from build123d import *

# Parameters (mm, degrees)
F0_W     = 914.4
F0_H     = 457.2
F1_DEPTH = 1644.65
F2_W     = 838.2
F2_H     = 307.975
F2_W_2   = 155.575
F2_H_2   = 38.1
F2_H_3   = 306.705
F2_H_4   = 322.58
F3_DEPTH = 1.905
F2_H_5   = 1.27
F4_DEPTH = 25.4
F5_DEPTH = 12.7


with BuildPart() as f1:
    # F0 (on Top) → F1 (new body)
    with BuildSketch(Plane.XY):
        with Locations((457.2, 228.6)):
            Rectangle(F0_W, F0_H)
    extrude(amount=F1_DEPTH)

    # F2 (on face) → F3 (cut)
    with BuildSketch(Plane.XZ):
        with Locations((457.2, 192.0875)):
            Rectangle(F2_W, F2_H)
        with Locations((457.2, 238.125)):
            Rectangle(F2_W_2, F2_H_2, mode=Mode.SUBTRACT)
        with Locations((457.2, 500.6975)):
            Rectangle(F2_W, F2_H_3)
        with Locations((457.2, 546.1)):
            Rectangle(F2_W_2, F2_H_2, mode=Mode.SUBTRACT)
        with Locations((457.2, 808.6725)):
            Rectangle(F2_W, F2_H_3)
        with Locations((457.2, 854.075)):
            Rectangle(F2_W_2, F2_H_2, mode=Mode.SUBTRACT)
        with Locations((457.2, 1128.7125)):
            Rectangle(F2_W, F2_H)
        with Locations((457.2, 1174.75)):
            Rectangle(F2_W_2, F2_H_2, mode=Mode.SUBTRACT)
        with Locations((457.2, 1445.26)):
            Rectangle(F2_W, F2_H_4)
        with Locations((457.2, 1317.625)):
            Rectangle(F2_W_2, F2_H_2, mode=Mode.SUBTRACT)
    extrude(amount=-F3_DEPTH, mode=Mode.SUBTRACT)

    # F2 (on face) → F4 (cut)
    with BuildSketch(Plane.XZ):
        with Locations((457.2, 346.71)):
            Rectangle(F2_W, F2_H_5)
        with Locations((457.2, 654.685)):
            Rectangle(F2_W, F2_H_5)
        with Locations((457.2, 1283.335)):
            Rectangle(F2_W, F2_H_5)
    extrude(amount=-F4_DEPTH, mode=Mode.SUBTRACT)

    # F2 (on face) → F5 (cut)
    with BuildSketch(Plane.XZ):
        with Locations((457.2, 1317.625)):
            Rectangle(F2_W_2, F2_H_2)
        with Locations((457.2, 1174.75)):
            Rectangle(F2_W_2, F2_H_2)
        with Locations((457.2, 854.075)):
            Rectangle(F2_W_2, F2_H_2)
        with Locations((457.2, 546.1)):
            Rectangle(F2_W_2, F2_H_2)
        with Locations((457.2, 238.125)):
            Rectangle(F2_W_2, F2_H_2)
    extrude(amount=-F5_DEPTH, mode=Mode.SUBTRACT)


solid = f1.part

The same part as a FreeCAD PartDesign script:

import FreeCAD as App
import Part
import Sketcher

V = App.Vector
Q = App.Units.Quantity

doc = App.newDocument("Part")
body = doc.addObject("PartDesign::Body", "Body")

sketch1 = body.newObject("Sketcher::SketchObject", "Sketch")
sketch1.AttachmentSupport = (doc.getObject("XY_Plane"), [""])
sketch1.MapMode = "FlatFace"
sketch1.addGeometry([
    Part.LineSegment(V(0, 457.2, 0), V(0, 0, 0)),
    Part.LineSegment(V(0, 0, 0), V(914.4, 0, 0)),
    Part.LineSegment(V(914.4, 0, 0), V(914.4, 457.2, 0)),
    Part.LineSegment(V(914.4, 457.2, 0), V(0, 457.2, 0)),
], False)
sketch1.addConstraint([
    Sketcher.Constraint("Coincident", 0, 2, 1, 1),
    Sketcher.Constraint("Coincident", 1, 2, 2, 1),
    Sketcher.Constraint("Coincident", 2, 2, 3, 1),
    Sketcher.Constraint("Coincident", 3, 2, 0, 1),
    Sketcher.Constraint("Vertical", 0),
    Sketcher.Constraint("Horizontal", 1),
    Sketcher.Constraint("Vertical", 2),
    Sketcher.Constraint("Horizontal", 3),
    Sketcher.Constraint("Coincident", 0, 2, -1, 1),
    Sketcher.Constraint("DistanceX", 1, 1, 1, 2, Q("36 in")),
    Sketcher.Constraint("DistanceY", 0, 2, 0, 1, Q("18 in")),
])
pad1 = body.newObject("PartDesign::Pad", "Pad")
pad1.Profile = sketch1
pad1.Length = Q("64.75 in")

sketch2 = body.newObject("Sketcher::SketchObject", "Sketch001")
sketch2.AttachmentSupport = (doc.getObject("XZ_Plane"), [""])
sketch2.MapMode = "FlatFace"
sketch2.addGeometry([
    Part.LineSegment(V(38.1, 346.075, 0), V(38.1, 38.1, 0)),
    Part.LineSegment(V(38.1, 38.1, 0), V(876.3, 38.1, 0)),
    Part.LineSegment(V(876.3, 38.1, 0), V(876.3, 346.075, 0)),
    Part.LineSegment(V(876.3, 346.075, 0), V(38.1, 346.075, 0)),
    Part.LineSegment(V(534.9875, 219.075, 0), V(379.4125, 219.075, 0)),
    Part.LineSegment(V(379.4125, 219.075, 0), V(379.4125, 257.175, 0)),
    Part.LineSegment(V(379.4125, 257.175, 0), V(534.9875, 257.175, 0)),
    Part.LineSegment(V(534.9875, 257.175, 0), V(534.9875, 219.075, 0)),
    Part.LineSegment(V(38.1, 654.05, 0), V(38.1, 347.345, 0)),
    Part.LineSegment(V(38.1, 347.345, 0), V(876.3, 347.345, 0)),
    Part.LineSegment(V(876.3, 347.345, 0), V(876.3, 654.05, 0)),
    Part.LineSegment(V(876.3, 654.05, 0), V(38.1, 654.05, 0)),
    Part.LineSegment(V(534.9875, 527.05, 0), V(379.4125, 527.05, 0)),
    Part.LineSegment(V(379.4125, 527.05, 0), V(379.4125, 565.15, 0)),
    Part.LineSegment(V(379.4125, 565.15, 0), V(534.9875, 565.15, 0)),
    Part.LineSegment(V(534.9875, 565.15, 0), V(534.9875, 527.05, 0)),
    Part.LineSegment(V(38.1, 962.025, 0), V(38.1, 655.32, 0)),
    Part.LineSegment(V(38.1, 655.32, 0), V(876.3, 655.32, 0)),
    Part.LineSegment(V(876.3, 655.32, 0), V(876.3, 962.025, 0)),
    Part.LineSegment(V(876.3, 962.025, 0), V(38.1, 962.025, 0)),
    Part.LineSegment(V(534.9875, 835.025, 0), V(379.4125, 835.025, 0)),
    Part.LineSegment(V(379.4125, 835.025, 0), V(379.4125, 873.125, 0)),
    Part.LineSegment(V(379.4125, 873.125, 0), V(534.9875, 873.125, 0)),
    Part.LineSegment(V(534.9875, 873.125, 0), V(534.9875, 835.025, 0)),
    Part.LineSegment(V(38.1, 1282.7, 0), V(38.1, 974.725, 0)),
    Part.LineSegment(V(38.1, 974.725, 0), V(876.3, 974.725, 0)),
    Part.LineSegment(V(876.3, 974.725, 0), V(876.3, 1282.7, 0)),
    Part.LineSegment(V(876.3, 1282.7, 0), V(38.1, 1282.7, 0)),
    Part.LineSegment(V(534.9875, 1155.7, 0), V(379.4125, 1155.7, 0)),
    Part.LineSegment(V(379.4125, 1155.7, 0), V(379.4125, 1193.8, 0)),
    Part.LineSegment(V(379.4125, 1193.8, 0), V(534.9875, 1193.8, 0)),
    Part.LineSegment(V(534.9875, 1193.8, 0), V(534.9875, 1155.7, 0)),
    Part.LineSegment(V(38.1, 1606.55, 0), V(38.1, 1283.97, 0)),
    Part.LineSegment(V(38.1, 1283.97, 0), V(876.3, 1283.97, 0)),
    Part.LineSegment(V(876.3, 1283.97, 0), V(876.3, 1606.55, 0)),
    Part.LineSegment(V(876.3, 1606.55, 0), V(38.1, 1606.55, 0)),
    Part.LineSegment(V(534.9875, 1298.575, 0), V(379.4125, 1298.575, 0)),
    Part.LineSegment(V(379.4125, 1298.575, 0), V(379.4125, 1336.675, 0)),
    Part.LineSegment(V(379.4125, 1336.675, 0), V(534.9875, 1336.675, 0)),
    Part.LineSegment(V(534.9875, 1336.675, 0), V(534.9875, 1298.575, 0)),
], False)
sketch2.addConstraint([
    Sketcher.Constraint("Coincident", 0, 2, 1, 1),
    Sketcher.Constraint("Coincident", 1, 2, 2, 1),
    Sketcher.Constraint("Coincident", 2, 2, 3, 1),
    Sketcher.Constraint("Coincident", 3, 2, 0, 1),
    Sketcher.Constraint("Coincident", 4, 2, 5, 1),
    Sketcher.Constraint("Coincident", 5, 2, 6, 1),
    Sketcher.Constraint("Coincident", 6, 2, 7, 1),
    Sketcher.Constraint("Coincident", 7, 2, 4, 1),
    Sketcher.Constraint("Coincident", 8, 2, 9, 1),
    Sketcher.Constraint("Coincident", 9, 2, 10, 1),
    Sketcher.Constraint("Coincident", 10, 2, 11, 1),
    Sketcher.Constraint("Coincident", 11, 2, 8, 1),
    Sketcher.Constraint("Coincident", 12, 2, 13, 1),
    Sketcher.Constraint("Coincident", 13, 2, 14, 1),
    Sketcher.Constraint("Coincident", 14, 2, 15, 1),
    Sketcher.Constraint("Coincident", 15, 2, 12, 1),
    Sketcher.Constraint("Coincident", 16, 2, 17, 1),
    Sketcher.Constraint("Coincident", 17, 2, 18, 1),
    Sketcher.Constraint("Coincident", 18, 2, 19, 1),
    Sketcher.Constraint("Coincident", 19, 2, 16, 1),
    Sketcher.Constraint("Coincident", 20, 2, 21, 1),
    Sketcher.Constraint("Coincident", 21, 2, 22, 1),
    Sketcher.Constraint("Coincident", 22, 2, 23, 1),
    Sketcher.Constraint("Coincident", 23, 2, 20, 1),
    Sketcher.Constraint("Coincident", 24, 2, 25, 1),
    Sketcher.Constraint("Coincident", 25, 2, 26, 1),
    Sketcher.Constraint("Coincident", 26, 2, 27, 1),
    Sketcher.Constraint("Coincident", 27, 2, 24, 1),
    Sketcher.Constraint("Coincident", 28, 2, 29, 1),
    Sketcher.Constraint("Coincident", 29, 2, 30, 1),
    Sketcher.Constraint("Coincident", 30, 2, 31, 1),
    Sketcher.Constraint("Coincident", 31, 2, 28, 1),
    Sketcher.Constraint("Coincident", 32, 2, 33, 1),
    Sketcher.Constraint("Coincident", 33, 2, 34, 1),
    Sketcher.Constraint("Coincident", 34, 2, 35, 1),
    Sketcher.Constraint("Coincident", 35, 2, 32, 1),
    Sketcher.Constraint("Coincident", 36, 2, 37, 1),
    Sketcher.Constraint("Coincident", 37, 2, 38, 1),
    Sketcher.Constraint("Coincident", 38, 2, 39, 1),
    Sketcher.Constraint("Coincident", 39, 2, 36, 1),
    Sketcher.Constraint("Vertical", 0),
    Sketcher.Constraint("Horizontal", 1),
    Sketcher.Constraint("Vertical", 2),
    Sketcher.Constraint("Horizontal", 3),
    Sketcher.Constraint("Horizontal", 4),
    Sketcher.Constraint("Vertical", 5),
    Sketcher.Constraint("Horizontal", 6),
    Sketcher.Constraint("Vertical", 7),
    Sketcher.Constraint("Vertical", 8),
    Sketcher.Constraint("Horizontal", 9),
    Sketcher.Constraint("Vertical", 10),
    Sketcher.Constraint("Horizontal", 11),
    Sketcher.Constraint("Horizontal", 12),
    Sketcher.Constraint("Vertical", 13),
    Sketcher.Constraint("Horizontal", 14),
    Sketcher.Constraint("Vertical", 15),
    Sketcher.Constraint("Vertical", 16),
    Sketcher.Constraint("Horizontal", 17),
    Sketcher.Constraint("Vertical", 18),
    Sketcher.Constraint("Horizontal", 19),
    Sketcher.Constraint("Horizontal", 20),
    Sketcher.Constraint("Vertical", 21),
    Sketcher.Constraint("Horizontal", 22),
    Sketcher.Constraint("Vertical", 23),
    Sketcher.Constraint("Vertical", 24),
    Sketcher.Constraint("Horizontal", 25),
    Sketcher.Constraint("Vertical", 26),
    Sketcher.Constraint("Horizontal", 27),
    Sketcher.Constraint("Horizontal", 28),
    Sketcher.Constraint("Vertical", 29),
    Sketcher.Constraint("Horizontal", 30),
    Sketcher.Constraint("Vertical", 31),
    Sketcher.Constraint("Vertical", 32),
    Sketcher.Constraint("Horizontal", 33),
    Sketcher.Constraint("Vertical", 34),
    Sketcher.Constraint("Horizontal", 35),
    Sketcher.Constraint("Horizontal", 36),
    Sketcher.Constraint("Vertical", 37),
    Sketcher.Constraint("Horizontal", 38),
    Sketcher.Constraint("Vertical", 39),
    Sketcher.Constraint("Vertical", 3, 2, 8, 2),
    Sketcher.Constraint("Vertical", 2, 2, 9, 2),
    Sketcher.Constraint("Vertical", 5, 2, 12, 2),
    Sketcher.Constraint("Vertical", 7, 2, 14, 2),
    Sketcher.Constraint("Vertical", 11, 2, 16, 2),
    Sketcher.Constraint("Vertical", 10, 2, 17, 2),
    Sketcher.Constraint("Vertical", 13, 2, 20, 2),
    Sketcher.Constraint("Vertical", 15, 2, 22, 2),
    Sketcher.Constraint("Vertical", 19, 2, 24, 2),
    Sketcher.Constraint("Vertical", 18, 2, 25, 2),
    Sketcher.Constraint("Vertical", 21, 2, 28, 2),
    Sketcher.Constraint("Vertical", 23, 2, 30, 2),
    Sketcher.Constraint("Vertical", 27, 2, 32, 2),
    Sketcher.Constraint("Vertical", 26, 2, 33, 2),
    Sketcher.Constraint("Vertical", 29, 2, 36, 2),
    Sketcher.Constraint("Vertical", 31, 2, 38, 2),
    Sketcher.Constraint("Equal", 7, 13),
    Sketcher.Constraint("Equal", 10, 16),
    Sketcher.Constraint("Equal", 15, 21),
    Sketcher.Constraint("Equal", 2, 24),
    Sketcher.Constraint("Equal", 23, 29),
    Sketcher.Constraint("Equal", 31, 37),
    Sketcher.Constraint("DistanceX", 1, 1, 1, 2, Q("33 in")),
    Sketcher.Constraint("DistanceY", 5, 1, 5, 2, Q("1.5 in")),
    Sketcher.Constraint("DistanceY", 32, 2, 32, 1, Q("12.7 in")),
    Sketcher.Constraint("DistanceY", -1, 1, 29, 2, Q("47 in")),
    Sketcher.Constraint("DistanceY", 4, 2, 3, 2, Q("5 in")),
    Sketcher.Constraint("DistanceY", 12, 2, 11, 2, Q("5 in")),
    Sketcher.Constraint("DistanceY", 20, 2, 19, 2, Q("5 in")),
    Sketcher.Constraint("DistanceY", 21, 2, 24, 2, Q("4 in")),
    Sketcher.Constraint("DistanceY", 28, 2, 27, 2, Q("5 in")),
    Sketcher.Constraint("DistanceX", -1, 1, 0, 2, Q("1.5 in")),
    Sketcher.Constraint("DistanceY", -1, 1, 0, 2, Q("1.5 in")),
    Sketcher.Constraint("DistanceY", -1, 1, 16, 2, Q("25.8 in")),
    Sketcher.Constraint("DistanceY", 9, 2, 18, 2, Q("24.2 in")),
    Sketcher.Constraint("DistanceX", 4, 2, 4, 1, Q("6.125 in")),
    Sketcher.Constraint("DistanceY", 0, 2, 0, 1, Q("12.125 in")),
    Sketcher.Constraint("DistanceY", -1, 1, 32, 2, Q("50.55 in")),
    Sketcher.Constraint("DistanceX", -1, 1, 4, 2, Q("14.9375 in")),
    Sketcher.Constraint("DistanceY", -1, 1, 36, 2, Q("51.125 in")),
])
pocket1 = body.newObject("PartDesign::Pocket", "Pocket")
pocket1.Profile = sketch2
pocket1.Length = Q("0.075 in")

sketch3 = body.newObject("Sketcher::SketchObject", "Sketch002")
sketch3.AttachmentSupport = (doc.getObject("XZ_Plane"), [""])
sketch3.MapMode = "FlatFace"
sketch3.addGeometry([
    Part.LineSegment(V(38.1, 347.345, 0), V(38.1, 346.075, 0)),
    Part.LineSegment(V(38.1, 346.075, 0), V(876.3, 346.075, 0)),
    Part.LineSegment(V(876.3, 346.075, 0), V(876.3, 347.345, 0)),
    Part.LineSegment(V(876.3, 347.345, 0), V(38.1, 347.345, 0)),
    Part.LineSegment(V(38.1, 655.32, 0), V(38.1, 654.05, 0)),
    Part.LineSegment(V(38.1, 654.05, 0), V(876.3, 654.05, 0)),
    Part.LineSegment(V(876.3, 654.05, 0), V(876.3, 655.32, 0)),
    Part.LineSegment(V(876.3, 655.32, 0), V(38.1, 655.32, 0)),
    Part.LineSegment(V(38.1, 1283.97, 0), V(38.1, 1282.7, 0)),
    Part.LineSegment(V(38.1, 1282.7, 0), V(876.3, 1282.7, 0)),
    Part.LineSegment(V(876.3, 1282.7, 0), V(876.3, 1283.97, 0)),
    Part.LineSegment(V(876.3, 1283.97, 0), V(38.1, 1283.97, 0)),
], False)
sketch3.addConstraint([
    Sketcher.Constraint("Coincident", 0, 2, 1, 1),
    Sketcher.Constraint("Coincident", 1, 2, 2, 1),
    Sketcher.Constraint("Coincident", 2, 2, 3, 1),
    Sketcher.Constraint("Coincident", 3, 2, 0, 1),
    Sketcher.Constraint("Coincident", 4, 2, 5, 1),
    Sketcher.Constraint("Coincident", 5, 2, 6, 1),
    Sketcher.Constraint("Coincident", 6, 2, 7, 1),
    Sketcher.Constraint("Coincident", 7, 2, 4, 1),
    Sketcher.Constraint("Coincident", 8, 2, 9, 1),
    Sketcher.Constraint("Coincident", 9, 2, 10, 1),
    Sketcher.Constraint("Coincident", 10, 2, 11, 1),
    Sketcher.Constraint("Coincident", 11, 2, 8, 1),
    Sketcher.Constraint("Vertical", 0),
    Sketcher.Constraint("Horizontal", 1),
    Sketcher.Constraint("Vertical", 2),
    Sketcher.Constraint("Horizontal", 3),
    Sketcher.Constraint("Vertical", 4),
    Sketcher.Constraint("Horizontal", 5),
    Sketcher.Constraint("Vertical", 6),
    Sketcher.Constraint("Horizontal", 7),
    Sketcher.Constraint("Vertical", 8),
    Sketcher.Constraint("Horizontal", 9),
    Sketcher.Constraint("Vertical", 10),
    Sketcher.Constraint("Horizontal", 11),
    Sketcher.Constraint("Vertical", 3, 2, 4, 2),
    Sketcher.Constraint("Vertical", 2, 2, 5, 2),
    Sketcher.Constraint("Vertical", 7, 2, 8, 2),
    Sketcher.Constraint("Vertical", 6, 2, 9, 2),
    Sketcher.Constraint("Equal", 2, 4),
    Sketcher.Constraint("Equal", 6, 8),
    Sketcher.Constraint("DistanceX", 1, 1, 1, 2, Q("33 in")),
    Sketcher.Constraint("DistanceY", 0, 2, 0, 1, Q("0.05 in")),
    Sketcher.Constraint("DistanceX", -1, 1, 0, 2, Q("1.5 in")),
    Sketcher.Constraint("DistanceY", -1, 1, 6, 2, Q("25.8 in")),
    Sketcher.Constraint("DistanceY", -1, 1, 8, 2, Q("50.5 in")),
    Sketcher.Constraint("DistanceY", -1, 1, 0, 2, Q("13.625 in")),
])
pocket2 = body.newObject("PartDesign::Pocket", "Pocket001")
pocket2.Profile = sketch3
pocket2.Length = Q("1 in")

sketch4 = body.newObject("Sketcher::SketchObject", "Sketch003")
sketch4.AttachmentSupport = (doc.getObject("XZ_Plane"), [""])
sketch4.MapMode = "FlatFace"
sketch4.addGeometry([
    Part.LineSegment(V(379.4125, 1336.675, 0), V(379.4125, 1298.575, 0)),
    Part.LineSegment(V(379.4125, 1298.575, 0), V(534.9875, 1298.575, 0)),
    Part.LineSegment(V(534.9875, 1298.575, 0), V(534.9875, 1336.675, 0)),
    Part.LineSegment(V(534.9875, 1336.675, 0), V(379.4125, 1336.675, 0)),
    Part.LineSegment(V(379.4125, 1193.8, 0), V(379.4125, 1155.7, 0)),
    Part.LineSegment(V(379.4125, 1155.7, 0), V(534.9875, 1155.7, 0)),
    Part.LineSegment(V(534.9875, 1155.7, 0), V(534.9875, 1193.8, 0)),
    Part.LineSegment(V(534.9875, 1193.8, 0), V(379.4125, 1193.8, 0)),
    Part.LineSegment(V(379.4125, 873.125, 0), V(379.4125, 835.025, 0)),
    Part.LineSegment(V(379.4125, 835.025, 0), V(534.9875, 835.025, 0)),
    Part.LineSegment(V(534.9875, 835.025, 0), V(534.9875, 873.125, 0)),
    Part.LineSegment(V(534.9875, 873.125, 0), V(379.4125, 873.125, 0)),
    Part.LineSegment(V(379.4125, 565.15, 0), V(379.4125, 527.05, 0)),
    Part.LineSegment(V(379.4125, 527.05, 0), V(534.9875, 527.05, 0)),
    Part.LineSegment(V(534.9875, 527.05, 0), V(534.9875, 565.15, 0)),
    Part.LineSegment(V(534.9875, 565.15, 0), V(379.4125, 565.15, 0)),
    Part.LineSegment(V(379.4125, 257.175, 0), V(379.4125, 219.075, 0)),
    Part.LineSegment(V(379.4125, 219.075, 0), V(534.9875, 219.075, 0)),
    Part.LineSegment(V(534.9875, 219.075, 0), V(534.9875, 257.175, 0)),
    Part.LineSegment(V(534.9875, 257.175, 0), V(379.4125, 257.175, 0)),
], False)
sketch4.addConstraint([
    Sketcher.Constraint("Coincident", 0, 2, 1, 1),
    Sketcher.Constraint("Coincident", 1, 2, 2, 1),
    Sketcher.Constraint("Coincident", 2, 2, 3, 1),
    Sketcher.Constraint("Coincident", 3, 2, 0, 1),
    Sketcher.Constraint("Coincident", 4, 2, 5, 1),
    Sketcher.Constraint("Coincident", 5, 2, 6, 1),
    Sketcher.Constraint("Coincident", 6, 2, 7, 1),
    Sketcher.Constraint("Coincident", 7, 2, 4, 1),
    Sketcher.Constraint("Coincident", 8, 2, 9, 1),
    Sketcher.Constraint("Coincident", 9, 2, 10, 1),
    Sketcher.Constraint("Coincident", 10, 2, 11, 1),
    Sketcher.Constraint("Coincident", 11, 2, 8, 1),
    Sketcher.Constraint("Coincident", 12, 2, 13, 1),
    Sketcher.Constraint("Coincident", 13, 2, 14, 1),
    Sketcher.Constraint("Coincident", 14, 2, 15, 1),
    Sketcher.Constraint("Coincident", 15, 2, 12, 1),
    Sketcher.Constraint("Coincident", 16, 2, 17, 1),
    Sketcher.Constraint("Coincident", 17, 2, 18, 1),
    Sketcher.Constraint("Coincident", 18, 2, 19, 1),
    Sketcher.Constraint("Coincident", 19, 2, 16, 1),
    Sketcher.Constraint("Vertical", 0),
    Sketcher.Constraint("Horizontal", 1),
    Sketcher.Constraint("Vertical", 2),
    Sketcher.Constraint("Horizontal", 3),
    Sketcher.Constraint("Vertical", 4),
    Sketcher.Constraint("Horizontal", 5),
    Sketcher.Constraint("Vertical", 6),
    Sketcher.Constraint("Horizontal", 7),
    Sketcher.Constraint("Vertical", 8),
    Sketcher.Constraint("Horizontal", 9),
    Sketcher.Constraint("Vertical", 10),
    Sketcher.Constraint("Horizontal", 11),
    Sketcher.Constraint("Vertical", 12),
    Sketcher.Constraint("Horizontal", 13),
    Sketcher.Constraint("Vertical", 14),
    Sketcher.Constraint("Horizontal", 15),
    Sketcher.Constraint("Vertical", 16),
    Sketcher.Constraint("Horizontal", 17),
    Sketcher.Constraint("Vertical", 18),
    Sketcher.Constraint("Horizontal", 19),
    Sketcher.Constraint("Vertical", 3, 2, 4, 2),
    Sketcher.Constraint("Vertical", 2, 2, 5, 2),
    Sketcher.Constraint("Vertical", 7, 2, 8, 2),
    Sketcher.Constraint("Vertical", 6, 2, 9, 2),
    Sketcher.Constraint("Vertical", 11, 2, 12, 2),
    Sketcher.Constraint("Vertical", 10, 2, 13, 2),
    Sketcher.Constraint("Vertical", 15, 2, 16, 2),
    Sketcher.Constraint("Vertical", 14, 2, 17, 2),
    Sketcher.Constraint("Equal", 2, 4),
    Sketcher.Constraint("Equal", 6, 8),
    Sketcher.Constraint("Equal", 10, 12),
    Sketcher.Constraint("Equal", 14, 16),
    Sketcher.Constraint("DistanceY", 0, 2, 0, 1, Q("1.5 in")),
    Sketcher.Constraint("DistanceY", -1, 1, 6, 2, Q("47 in")),
    Sketcher.Constraint("DistanceX", 1, 1, 1, 2, Q("6.125 in")),
    Sketcher.Constraint("DistanceY", -1, 1, 12, 2, Q("20.75 in")),
    Sketcher.Constraint("DistanceY", 8, 2, 0, 2, Q("18.25 in")),
    Sketcher.Constraint("DistanceY", 16, 2, 8, 2, Q("24.25 in")),
    Sketcher.Constraint("DistanceX", -1, 1, 0, 2, Q("14.9375 in")),
    Sketcher.Constraint("DistanceY", -1, 1, 0, 2, Q("51.125 in")),
])
pocket3 = body.newObject("PartDesign::Pocket", "Pocket002")
pocket3.Profile = sketch4
pocket3.Length = Q("0.5 in")

doc.recompute()
